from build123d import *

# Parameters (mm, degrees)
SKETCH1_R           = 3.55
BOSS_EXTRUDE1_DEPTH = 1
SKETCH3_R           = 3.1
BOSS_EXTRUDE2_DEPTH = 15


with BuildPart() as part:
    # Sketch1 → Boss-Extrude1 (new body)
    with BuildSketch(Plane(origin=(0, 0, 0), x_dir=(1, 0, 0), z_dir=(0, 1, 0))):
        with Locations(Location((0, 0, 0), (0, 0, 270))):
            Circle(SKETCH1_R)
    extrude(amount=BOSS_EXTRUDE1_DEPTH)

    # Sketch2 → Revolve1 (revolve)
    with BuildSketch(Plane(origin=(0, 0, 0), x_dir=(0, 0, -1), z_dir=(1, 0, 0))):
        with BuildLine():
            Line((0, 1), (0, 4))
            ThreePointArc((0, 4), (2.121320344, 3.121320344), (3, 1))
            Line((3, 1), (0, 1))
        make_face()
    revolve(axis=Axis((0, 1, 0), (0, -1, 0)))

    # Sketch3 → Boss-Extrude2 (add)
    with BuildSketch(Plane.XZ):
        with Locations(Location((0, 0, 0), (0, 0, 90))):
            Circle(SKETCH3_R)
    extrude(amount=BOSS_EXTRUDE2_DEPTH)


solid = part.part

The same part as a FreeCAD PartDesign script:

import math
import FreeCAD as App
import Part
import Sketcher
from FreeCAD import Vector

doc = App.newDocument("Part")
body = doc.addObject("PartDesign::Body", "Body")

sketch1 = body.newObject("Sketcher::SketchObject", "Sketch")
sketch1.AttachmentSupport = (doc.getObject("XZ_Plane"), [""])
sketch1.MapMode = "FlatFace"
sketch1.addGeometry(Part.Circle(Vector(0, 0, 0), Vector(0, 0, 1), 3.55), False)
sketch1.addConstraint([
    Sketcher.Constraint("Coincident", 0, 3, -1, 1),
    Sketcher.Constraint("Diameter", 0, 7.1),
])
pad1 = body.newObject("PartDesign::Pad", "Pad")
pad1.Profile = sketch1
pad1.Length = 1
pad1.Reversed = True

sketch2 = body.newObject("Sketcher::SketchObject", "Sketch001")
sketch2.AttachmentSupport = (doc.getObject("YZ_Plane"), [""])
sketch2.MapMode = "FlatFace"
sketch2.addGeometry([
    Part.LineSegment(Vector(4, 0, 0), Vector(1, 0, 0)),
    Part.LineSegment(Vector(1, 0, 0), Vector(1, -3, 0)),
    Part.ArcOfCircle(Part.Circle(Vector(1, 0, 0), Vector(0, 0, 1), 3), math.radians(-90), math.radians(0)),
], False)
sketch2.addConstraint([
    Sketcher.Constraint("Coincident", 0, 2, 1, 1),
    Sketcher.Constraint("Coincident", 1, 2, 2, 1),
    Sketcher.Constraint("Coincident", 2, 2, 0, 1),
    Sketcher.Constraint("Horizontal", 0),
    Sketcher.Constraint("Vertical", 1),
    Sketcher.Constraint("Coincident", 0, 2, 2, 3),
    Sketcher.Constraint("PointOnObject", 2, 3, -1),
    Sketcher.Constraint("Radius", 2, 3.0),
    Sketcher.Constraint("DistanceX", -1, 1, 2, 3, 1.0),
])
revolution = body.newObject("PartDesign::Revolution", "Revolution")
revolution.Profile = sketch2
revolution.ReferenceAxis = (sketch2, ["H_Axis"])
revolution.Angle = 360

sketch3 = body.newObject("Sketcher::SketchObject", "Sketch002")
sketch3.AttachmentSupport = (doc.getObject("XZ_Plane"), [""])
sketch3.MapMode = "FlatFace"
sketch3.addGeometry(Part.Circle(Vector(0, 0, 0), Vector(0, 0, 1), 3.1), False)
sketch3.addConstraint([
    Sketcher.Constraint("Coincident", 0, 3, -1, 1),
    Sketcher.Constraint("Diameter", 0, 6.2),
])
pad2 = body.newObject("PartDesign::Pad", "Pad001")
pad2.Profile = sketch3
pad2.Length = 15

doc.recompute()
